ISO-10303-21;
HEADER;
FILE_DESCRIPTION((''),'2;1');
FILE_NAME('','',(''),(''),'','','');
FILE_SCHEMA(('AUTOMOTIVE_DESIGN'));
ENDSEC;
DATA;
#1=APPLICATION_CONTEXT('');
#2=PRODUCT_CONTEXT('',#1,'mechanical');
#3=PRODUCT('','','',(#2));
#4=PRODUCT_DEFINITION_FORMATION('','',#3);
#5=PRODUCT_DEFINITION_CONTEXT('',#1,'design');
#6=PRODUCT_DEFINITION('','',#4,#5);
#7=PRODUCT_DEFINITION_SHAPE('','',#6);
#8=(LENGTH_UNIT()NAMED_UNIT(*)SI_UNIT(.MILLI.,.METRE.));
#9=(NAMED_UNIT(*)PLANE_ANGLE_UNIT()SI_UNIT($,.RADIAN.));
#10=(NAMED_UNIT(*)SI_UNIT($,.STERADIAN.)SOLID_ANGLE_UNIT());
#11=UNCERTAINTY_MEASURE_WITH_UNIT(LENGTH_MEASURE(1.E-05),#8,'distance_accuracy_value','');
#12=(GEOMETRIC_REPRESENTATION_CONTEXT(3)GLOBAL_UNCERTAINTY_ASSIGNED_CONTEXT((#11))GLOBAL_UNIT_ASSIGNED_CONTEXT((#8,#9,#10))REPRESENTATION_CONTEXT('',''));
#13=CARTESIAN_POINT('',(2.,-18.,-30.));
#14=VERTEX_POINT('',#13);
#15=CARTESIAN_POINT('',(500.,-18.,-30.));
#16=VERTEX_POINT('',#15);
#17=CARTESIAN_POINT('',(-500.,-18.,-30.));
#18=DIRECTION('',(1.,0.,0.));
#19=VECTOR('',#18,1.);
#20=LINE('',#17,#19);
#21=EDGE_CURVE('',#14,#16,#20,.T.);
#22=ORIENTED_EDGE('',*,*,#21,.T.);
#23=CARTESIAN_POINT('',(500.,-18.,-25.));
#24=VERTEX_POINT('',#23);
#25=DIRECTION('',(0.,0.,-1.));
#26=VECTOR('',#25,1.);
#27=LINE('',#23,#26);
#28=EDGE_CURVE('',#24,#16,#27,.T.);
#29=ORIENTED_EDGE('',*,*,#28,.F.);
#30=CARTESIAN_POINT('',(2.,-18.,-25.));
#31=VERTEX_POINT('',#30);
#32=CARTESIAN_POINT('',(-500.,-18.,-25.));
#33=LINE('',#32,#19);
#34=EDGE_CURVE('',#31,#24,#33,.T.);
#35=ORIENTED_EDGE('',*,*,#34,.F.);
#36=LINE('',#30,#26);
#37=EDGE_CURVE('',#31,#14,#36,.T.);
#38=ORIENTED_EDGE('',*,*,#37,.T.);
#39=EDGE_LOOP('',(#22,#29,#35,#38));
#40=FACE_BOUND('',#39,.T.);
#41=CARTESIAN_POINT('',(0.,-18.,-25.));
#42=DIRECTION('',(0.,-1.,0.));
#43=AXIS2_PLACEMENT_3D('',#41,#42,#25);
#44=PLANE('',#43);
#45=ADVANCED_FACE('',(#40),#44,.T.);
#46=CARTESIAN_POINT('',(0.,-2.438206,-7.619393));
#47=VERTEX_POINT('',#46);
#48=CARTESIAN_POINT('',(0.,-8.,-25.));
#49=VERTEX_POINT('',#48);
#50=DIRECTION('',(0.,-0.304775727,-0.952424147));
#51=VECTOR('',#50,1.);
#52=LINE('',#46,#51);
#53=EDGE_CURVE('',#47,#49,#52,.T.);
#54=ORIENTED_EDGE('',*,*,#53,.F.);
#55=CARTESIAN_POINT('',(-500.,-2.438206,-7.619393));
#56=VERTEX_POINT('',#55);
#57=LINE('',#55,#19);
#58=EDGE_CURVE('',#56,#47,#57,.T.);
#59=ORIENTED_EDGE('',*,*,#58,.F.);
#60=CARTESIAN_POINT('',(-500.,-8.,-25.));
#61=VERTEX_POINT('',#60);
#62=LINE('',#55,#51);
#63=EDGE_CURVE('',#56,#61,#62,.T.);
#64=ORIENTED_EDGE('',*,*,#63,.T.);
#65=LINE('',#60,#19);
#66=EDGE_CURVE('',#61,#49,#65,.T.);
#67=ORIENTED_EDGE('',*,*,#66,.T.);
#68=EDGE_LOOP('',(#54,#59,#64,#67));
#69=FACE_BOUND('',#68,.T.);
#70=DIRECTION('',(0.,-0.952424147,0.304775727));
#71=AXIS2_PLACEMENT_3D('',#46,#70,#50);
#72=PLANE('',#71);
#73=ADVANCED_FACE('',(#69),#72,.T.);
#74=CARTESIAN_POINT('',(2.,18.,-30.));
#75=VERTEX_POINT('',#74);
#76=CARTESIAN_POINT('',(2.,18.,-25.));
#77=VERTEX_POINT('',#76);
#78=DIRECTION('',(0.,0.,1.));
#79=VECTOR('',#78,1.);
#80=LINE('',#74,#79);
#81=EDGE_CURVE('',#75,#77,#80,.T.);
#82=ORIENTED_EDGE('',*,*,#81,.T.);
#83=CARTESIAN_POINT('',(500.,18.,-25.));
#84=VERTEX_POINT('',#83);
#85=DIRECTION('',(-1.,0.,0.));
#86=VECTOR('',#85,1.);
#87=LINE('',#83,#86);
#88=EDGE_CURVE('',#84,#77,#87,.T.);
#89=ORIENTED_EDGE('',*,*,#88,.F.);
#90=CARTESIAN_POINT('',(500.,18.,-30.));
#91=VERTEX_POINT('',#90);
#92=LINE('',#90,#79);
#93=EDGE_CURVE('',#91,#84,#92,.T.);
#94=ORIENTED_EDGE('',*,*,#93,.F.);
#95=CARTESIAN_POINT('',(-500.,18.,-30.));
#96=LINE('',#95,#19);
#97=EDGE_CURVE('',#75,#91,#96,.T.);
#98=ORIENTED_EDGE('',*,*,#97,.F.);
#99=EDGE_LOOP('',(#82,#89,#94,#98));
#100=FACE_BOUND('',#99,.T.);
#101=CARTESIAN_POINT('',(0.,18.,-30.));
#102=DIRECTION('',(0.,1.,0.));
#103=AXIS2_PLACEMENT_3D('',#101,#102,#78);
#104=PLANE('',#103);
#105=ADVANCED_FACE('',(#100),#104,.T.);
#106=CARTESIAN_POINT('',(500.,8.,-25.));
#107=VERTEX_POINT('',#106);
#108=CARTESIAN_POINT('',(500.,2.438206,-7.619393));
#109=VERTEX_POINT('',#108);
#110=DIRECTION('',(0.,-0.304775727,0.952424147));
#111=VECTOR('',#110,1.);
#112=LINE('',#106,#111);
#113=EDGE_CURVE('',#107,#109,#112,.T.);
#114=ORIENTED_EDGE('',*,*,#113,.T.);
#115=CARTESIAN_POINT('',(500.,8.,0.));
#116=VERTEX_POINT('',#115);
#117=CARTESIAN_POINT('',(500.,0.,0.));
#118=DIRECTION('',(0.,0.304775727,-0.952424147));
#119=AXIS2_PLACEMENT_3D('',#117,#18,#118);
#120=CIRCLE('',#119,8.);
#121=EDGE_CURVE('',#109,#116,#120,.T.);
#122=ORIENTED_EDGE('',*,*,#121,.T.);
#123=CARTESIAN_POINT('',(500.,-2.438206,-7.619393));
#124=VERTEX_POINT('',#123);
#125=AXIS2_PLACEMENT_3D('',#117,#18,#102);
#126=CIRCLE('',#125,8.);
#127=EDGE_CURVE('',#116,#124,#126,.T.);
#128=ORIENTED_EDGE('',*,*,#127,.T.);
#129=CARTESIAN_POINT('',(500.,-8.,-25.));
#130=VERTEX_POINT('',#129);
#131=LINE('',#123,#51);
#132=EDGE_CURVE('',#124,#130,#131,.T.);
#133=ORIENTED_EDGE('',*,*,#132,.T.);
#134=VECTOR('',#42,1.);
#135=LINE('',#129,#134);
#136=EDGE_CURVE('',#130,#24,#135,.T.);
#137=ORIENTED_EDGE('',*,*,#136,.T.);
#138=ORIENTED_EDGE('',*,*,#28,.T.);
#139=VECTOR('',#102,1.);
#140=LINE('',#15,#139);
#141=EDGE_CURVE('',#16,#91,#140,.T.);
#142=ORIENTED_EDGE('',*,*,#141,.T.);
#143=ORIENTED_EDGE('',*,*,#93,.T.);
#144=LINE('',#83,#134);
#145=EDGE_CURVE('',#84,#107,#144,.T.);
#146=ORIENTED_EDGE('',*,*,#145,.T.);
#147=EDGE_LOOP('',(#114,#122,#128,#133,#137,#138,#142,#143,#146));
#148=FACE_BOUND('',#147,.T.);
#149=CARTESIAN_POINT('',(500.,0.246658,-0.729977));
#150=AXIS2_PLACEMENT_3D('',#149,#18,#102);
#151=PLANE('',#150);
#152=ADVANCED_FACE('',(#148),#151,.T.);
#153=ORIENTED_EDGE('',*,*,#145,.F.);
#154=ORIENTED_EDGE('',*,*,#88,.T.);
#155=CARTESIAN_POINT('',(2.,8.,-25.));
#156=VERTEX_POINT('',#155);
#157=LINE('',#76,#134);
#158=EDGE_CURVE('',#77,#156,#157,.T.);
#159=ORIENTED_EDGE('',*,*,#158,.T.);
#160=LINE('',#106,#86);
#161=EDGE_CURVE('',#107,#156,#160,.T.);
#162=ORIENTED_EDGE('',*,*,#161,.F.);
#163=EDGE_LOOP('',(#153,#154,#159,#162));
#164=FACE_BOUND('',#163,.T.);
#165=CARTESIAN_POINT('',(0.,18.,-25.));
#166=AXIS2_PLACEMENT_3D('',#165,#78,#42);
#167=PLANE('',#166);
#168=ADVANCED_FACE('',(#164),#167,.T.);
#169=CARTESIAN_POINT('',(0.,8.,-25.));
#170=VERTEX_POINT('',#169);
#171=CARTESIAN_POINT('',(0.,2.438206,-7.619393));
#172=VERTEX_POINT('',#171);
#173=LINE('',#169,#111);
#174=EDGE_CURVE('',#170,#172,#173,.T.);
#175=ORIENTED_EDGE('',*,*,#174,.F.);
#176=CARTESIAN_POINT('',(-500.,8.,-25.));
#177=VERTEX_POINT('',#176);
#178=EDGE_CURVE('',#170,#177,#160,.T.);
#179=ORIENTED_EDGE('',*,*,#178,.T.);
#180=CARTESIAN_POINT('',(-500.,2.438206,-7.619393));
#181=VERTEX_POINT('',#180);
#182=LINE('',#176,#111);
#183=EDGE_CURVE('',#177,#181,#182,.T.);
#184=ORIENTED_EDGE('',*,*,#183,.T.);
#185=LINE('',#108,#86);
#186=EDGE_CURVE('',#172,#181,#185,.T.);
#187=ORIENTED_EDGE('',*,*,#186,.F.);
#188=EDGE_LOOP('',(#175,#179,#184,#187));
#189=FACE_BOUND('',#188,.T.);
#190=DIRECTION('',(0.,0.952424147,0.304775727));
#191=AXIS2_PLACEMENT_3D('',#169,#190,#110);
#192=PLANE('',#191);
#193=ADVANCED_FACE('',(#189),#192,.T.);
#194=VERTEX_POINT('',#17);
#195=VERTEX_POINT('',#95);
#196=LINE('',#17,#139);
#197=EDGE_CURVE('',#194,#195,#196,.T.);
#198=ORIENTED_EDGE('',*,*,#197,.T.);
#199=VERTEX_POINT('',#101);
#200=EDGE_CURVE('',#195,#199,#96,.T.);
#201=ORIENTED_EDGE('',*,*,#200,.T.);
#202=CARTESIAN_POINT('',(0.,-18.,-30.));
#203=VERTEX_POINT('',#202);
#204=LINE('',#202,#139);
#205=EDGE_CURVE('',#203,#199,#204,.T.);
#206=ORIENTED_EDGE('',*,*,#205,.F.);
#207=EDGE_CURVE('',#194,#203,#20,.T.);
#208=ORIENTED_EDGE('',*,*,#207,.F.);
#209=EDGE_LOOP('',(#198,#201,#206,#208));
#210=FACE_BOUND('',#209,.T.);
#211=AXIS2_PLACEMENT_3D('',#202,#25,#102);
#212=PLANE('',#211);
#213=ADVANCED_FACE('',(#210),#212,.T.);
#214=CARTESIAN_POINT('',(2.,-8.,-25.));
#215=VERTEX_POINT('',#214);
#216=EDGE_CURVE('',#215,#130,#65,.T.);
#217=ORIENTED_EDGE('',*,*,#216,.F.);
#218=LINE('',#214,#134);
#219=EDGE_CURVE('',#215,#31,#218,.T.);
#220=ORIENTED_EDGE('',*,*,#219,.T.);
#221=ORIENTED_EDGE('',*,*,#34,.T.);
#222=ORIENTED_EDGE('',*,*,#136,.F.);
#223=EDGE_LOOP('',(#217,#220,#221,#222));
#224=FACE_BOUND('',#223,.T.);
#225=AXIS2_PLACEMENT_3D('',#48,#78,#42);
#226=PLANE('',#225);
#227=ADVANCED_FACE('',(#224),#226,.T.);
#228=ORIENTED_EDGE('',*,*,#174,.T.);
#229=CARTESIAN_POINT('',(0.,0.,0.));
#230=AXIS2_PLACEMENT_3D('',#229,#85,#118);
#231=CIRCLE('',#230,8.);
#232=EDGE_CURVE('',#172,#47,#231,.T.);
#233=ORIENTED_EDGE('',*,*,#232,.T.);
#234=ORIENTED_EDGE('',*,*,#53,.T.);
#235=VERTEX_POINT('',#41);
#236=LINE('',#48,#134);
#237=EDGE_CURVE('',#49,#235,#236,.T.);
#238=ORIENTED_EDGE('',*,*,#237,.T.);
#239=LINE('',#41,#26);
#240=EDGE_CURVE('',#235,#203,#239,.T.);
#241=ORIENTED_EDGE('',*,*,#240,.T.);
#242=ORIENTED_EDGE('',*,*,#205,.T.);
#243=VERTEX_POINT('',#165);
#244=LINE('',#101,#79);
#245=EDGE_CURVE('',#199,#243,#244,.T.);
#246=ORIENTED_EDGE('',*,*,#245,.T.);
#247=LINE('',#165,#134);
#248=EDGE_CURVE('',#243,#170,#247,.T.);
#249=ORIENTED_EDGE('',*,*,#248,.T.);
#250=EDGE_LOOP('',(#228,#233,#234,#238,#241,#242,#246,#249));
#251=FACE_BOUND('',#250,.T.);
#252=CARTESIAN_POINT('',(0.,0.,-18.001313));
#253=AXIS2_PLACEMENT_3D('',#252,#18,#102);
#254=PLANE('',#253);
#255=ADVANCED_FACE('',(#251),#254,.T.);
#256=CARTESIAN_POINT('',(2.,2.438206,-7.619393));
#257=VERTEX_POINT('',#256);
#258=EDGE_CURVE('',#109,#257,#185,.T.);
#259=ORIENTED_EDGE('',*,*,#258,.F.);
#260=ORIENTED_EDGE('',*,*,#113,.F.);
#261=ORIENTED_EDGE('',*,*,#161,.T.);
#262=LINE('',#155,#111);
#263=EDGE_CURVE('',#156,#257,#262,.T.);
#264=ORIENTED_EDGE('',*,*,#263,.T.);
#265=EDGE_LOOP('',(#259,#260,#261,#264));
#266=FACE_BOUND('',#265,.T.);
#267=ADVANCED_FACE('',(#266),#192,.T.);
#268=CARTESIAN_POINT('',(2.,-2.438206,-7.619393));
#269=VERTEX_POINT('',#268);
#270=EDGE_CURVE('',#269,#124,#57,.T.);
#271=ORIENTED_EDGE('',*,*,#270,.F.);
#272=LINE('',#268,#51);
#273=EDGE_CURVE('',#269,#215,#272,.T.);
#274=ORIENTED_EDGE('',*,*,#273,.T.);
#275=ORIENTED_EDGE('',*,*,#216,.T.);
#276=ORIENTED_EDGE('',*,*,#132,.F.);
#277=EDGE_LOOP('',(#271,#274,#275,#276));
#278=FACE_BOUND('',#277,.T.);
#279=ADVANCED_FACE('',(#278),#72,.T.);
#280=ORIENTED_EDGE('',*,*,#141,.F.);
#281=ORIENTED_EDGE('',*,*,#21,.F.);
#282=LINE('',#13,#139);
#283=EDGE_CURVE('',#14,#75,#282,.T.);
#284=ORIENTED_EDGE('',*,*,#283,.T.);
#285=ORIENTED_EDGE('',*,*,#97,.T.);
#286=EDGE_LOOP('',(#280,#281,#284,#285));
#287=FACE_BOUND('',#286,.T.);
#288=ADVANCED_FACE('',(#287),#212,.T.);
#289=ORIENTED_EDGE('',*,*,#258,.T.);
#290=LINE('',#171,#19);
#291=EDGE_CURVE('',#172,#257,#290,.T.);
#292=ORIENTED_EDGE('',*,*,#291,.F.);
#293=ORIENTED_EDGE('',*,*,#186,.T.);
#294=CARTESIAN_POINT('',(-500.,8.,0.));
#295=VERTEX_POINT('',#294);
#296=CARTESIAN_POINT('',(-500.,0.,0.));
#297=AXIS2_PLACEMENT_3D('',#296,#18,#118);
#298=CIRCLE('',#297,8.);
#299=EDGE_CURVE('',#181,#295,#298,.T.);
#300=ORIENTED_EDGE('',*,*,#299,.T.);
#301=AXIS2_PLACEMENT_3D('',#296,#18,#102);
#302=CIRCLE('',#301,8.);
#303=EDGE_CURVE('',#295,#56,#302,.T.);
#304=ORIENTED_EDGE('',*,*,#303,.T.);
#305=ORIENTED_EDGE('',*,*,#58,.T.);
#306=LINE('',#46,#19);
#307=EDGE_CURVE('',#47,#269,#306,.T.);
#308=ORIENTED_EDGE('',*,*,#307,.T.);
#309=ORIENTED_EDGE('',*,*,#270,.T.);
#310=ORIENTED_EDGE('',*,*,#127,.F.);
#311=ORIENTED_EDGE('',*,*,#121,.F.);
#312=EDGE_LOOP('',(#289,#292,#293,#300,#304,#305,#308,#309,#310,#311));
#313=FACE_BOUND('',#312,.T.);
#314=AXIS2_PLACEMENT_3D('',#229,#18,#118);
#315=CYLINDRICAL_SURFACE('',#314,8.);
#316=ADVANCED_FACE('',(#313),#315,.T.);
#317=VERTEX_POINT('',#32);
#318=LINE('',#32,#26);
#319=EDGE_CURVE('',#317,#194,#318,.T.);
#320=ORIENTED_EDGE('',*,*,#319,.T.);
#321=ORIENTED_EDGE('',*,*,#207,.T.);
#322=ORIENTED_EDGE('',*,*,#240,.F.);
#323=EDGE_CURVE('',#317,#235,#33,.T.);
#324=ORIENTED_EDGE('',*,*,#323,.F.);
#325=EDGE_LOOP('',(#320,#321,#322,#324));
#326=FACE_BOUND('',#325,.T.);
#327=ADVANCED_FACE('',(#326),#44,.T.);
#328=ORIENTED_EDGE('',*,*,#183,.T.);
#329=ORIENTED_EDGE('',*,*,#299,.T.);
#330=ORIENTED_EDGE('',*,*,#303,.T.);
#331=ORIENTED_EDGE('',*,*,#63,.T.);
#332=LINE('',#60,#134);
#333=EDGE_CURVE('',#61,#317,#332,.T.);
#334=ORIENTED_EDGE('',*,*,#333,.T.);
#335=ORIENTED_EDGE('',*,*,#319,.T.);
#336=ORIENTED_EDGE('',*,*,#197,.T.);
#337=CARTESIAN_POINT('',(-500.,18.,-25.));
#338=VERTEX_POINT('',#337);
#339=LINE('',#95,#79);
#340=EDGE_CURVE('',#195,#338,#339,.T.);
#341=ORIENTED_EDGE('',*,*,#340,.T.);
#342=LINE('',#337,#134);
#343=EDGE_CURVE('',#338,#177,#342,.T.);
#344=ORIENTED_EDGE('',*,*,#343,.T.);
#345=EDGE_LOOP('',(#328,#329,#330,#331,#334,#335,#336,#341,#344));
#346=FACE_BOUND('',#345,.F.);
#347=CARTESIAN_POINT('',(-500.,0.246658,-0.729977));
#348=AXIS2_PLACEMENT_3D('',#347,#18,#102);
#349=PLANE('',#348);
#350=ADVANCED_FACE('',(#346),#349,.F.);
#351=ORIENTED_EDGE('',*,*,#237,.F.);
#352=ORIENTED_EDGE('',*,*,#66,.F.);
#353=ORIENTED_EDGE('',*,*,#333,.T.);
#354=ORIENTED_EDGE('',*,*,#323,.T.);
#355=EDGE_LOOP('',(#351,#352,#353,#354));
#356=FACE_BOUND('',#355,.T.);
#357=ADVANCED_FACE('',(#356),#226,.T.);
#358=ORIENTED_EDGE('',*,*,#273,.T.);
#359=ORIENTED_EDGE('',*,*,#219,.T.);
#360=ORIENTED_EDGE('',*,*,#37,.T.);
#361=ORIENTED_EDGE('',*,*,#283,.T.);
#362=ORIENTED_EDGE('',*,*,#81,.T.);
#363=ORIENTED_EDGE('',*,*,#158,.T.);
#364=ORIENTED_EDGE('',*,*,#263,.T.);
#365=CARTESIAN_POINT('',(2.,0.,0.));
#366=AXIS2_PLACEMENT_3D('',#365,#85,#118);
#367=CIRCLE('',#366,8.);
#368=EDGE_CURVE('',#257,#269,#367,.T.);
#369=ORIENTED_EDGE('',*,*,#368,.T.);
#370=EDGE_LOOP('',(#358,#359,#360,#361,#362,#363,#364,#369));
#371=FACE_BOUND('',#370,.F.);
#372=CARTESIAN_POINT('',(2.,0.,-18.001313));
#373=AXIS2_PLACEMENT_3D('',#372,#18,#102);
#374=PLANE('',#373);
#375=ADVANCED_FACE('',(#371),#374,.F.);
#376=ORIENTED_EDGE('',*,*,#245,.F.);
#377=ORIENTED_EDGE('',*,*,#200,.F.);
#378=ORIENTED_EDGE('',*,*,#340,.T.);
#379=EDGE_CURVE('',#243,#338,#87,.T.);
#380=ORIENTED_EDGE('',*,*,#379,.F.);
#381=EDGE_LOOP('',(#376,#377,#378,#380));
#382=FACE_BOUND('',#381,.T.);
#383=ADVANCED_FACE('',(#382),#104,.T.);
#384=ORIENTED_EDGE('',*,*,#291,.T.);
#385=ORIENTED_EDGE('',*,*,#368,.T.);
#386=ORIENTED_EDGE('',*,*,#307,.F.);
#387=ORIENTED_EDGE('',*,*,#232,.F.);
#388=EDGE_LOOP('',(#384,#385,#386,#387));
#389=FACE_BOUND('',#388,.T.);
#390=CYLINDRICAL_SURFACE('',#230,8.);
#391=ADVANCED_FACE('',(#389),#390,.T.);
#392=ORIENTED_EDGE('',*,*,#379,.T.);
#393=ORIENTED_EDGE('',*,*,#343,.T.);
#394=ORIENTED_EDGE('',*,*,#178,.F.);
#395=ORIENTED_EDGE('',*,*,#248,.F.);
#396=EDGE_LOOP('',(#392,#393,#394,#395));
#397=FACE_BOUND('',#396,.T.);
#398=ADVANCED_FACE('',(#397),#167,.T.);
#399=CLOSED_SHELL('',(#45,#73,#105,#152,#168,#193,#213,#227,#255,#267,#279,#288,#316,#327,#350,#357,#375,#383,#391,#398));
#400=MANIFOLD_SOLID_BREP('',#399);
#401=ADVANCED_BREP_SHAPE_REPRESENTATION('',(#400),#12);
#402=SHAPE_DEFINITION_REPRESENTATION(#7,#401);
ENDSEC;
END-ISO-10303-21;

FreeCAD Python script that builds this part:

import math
import FreeCAD as App
import Part
import Sketcher

doc = App.newDocument("Part")
body = doc.addObject("PartDesign::Body", "Body")

# Sketch on YZ plane
sketch1 = body.newObject("Sketcher::SketchObject", "Sketch")
sketch1.AttachmentSupport = (doc.getObject("YZ_Plane"), [""])
sketch1.MapMode = "FlatFace"
sketch1.addGeometry([
    Part.ArcOfCircle(Part.Circle(App.Vector(0, 0, 0), App.Vector(0, 0, 1), 8), math.radians(-72.255328), math.radians(0)),  # 0
    Part.ArcOfCircle(Part.Circle(App.Vector(0, 0, 0), App.Vector(0, 0, 1), 8), math.radians(0), math.radians(252.255328)),  # 1
    Part.LineSegment(App.Vector(-2.438206, -7.619393, 0), App.Vector(-8, -25, 0)),  # 2
    Part.LineSegment(App.Vector(-8, -25, 0), App.Vector(-18, -25, 0)),  # 3
    Part.LineSegment(App.Vector(-18, -25, 0), App.Vector(-18, -30, 0)),  # 4
    Part.LineSegment(App.Vector(-18, -30, 0), App.Vector(18, -30, 0)),  # 5
    Part.LineSegment(App.Vector(18, -30, 0), App.Vector(18, -25, 0)),  # 6
    Part.LineSegment(App.Vector(18, -25, 0), App.Vector(8, -25, 0)),  # 7
    Part.LineSegment(App.Vector(8, -25, 0), App.Vector(2.438206, -7.619393, 0)),  # 8
], False)
sketch1.addConstraint([
    Sketcher.Constraint("Tangent", 0, 2, 1, 1),
    Sketcher.Constraint("Coincident", 1, 2, 2, 1),
    Sketcher.Constraint("Coincident", 2, 2, 3, 1),
    Sketcher.Constraint("Coincident", 3, 2, 4, 1),
    Sketcher.Constraint("Coincident", 4, 2, 5, 1),
    Sketcher.Constraint("Coincident", 5, 2, 6, 1),
    Sketcher.Constraint("Coincident", 6, 2, 7, 1),
    Sketcher.Constraint("Coincident", 7, 2, 8, 1),
    Sketcher.Constraint("Coincident", 8, 2, 0, 1),
    Sketcher.Constraint("Horizontal", 3),
    Sketcher.Constraint("Vertical", 4),
    Sketcher.Constraint("Horizontal", 5),
    Sketcher.Constraint("Vertical", 6),
    Sketcher.Constraint("Horizontal", 7),
    Sketcher.Constraint("Coincident", 0, 3, -1, 1),
    Sketcher.Constraint("Equal", 0, 1),
    Sketcher.Constraint("Symmetric", 3, 2, 6, 2, -2),
    Sketcher.Constraint("PointOnObject", 0, 2, -1),
    Sketcher.Constraint("Horizontal", 1, 2, 8, 2),
    Sketcher.Constraint("Vertical", 0, 2, 7, 2),
    Sketcher.Constraint("Equal", 3, 7),
    Sketcher.Constraint("Radius", 0, 8.0),
    Sketcher.Constraint("DistanceX", 3, 2, 3, 1, 10.0),
    Sketcher.Constraint("DistanceY", 4, 2, 4, 1, 5.0),
    Sketcher.Constraint("DistanceY", 2, 2, -1, 1, 25.0),
    Sketcher.Constraint("DistanceX", 1, 2, 8, 2, 4.876412),
])
pad1 = body.newObject("PartDesign::Pad", "Pad")
pad1.Profile = sketch1
pad1.Length = 1000
pad1.Midplane = True

# Sketch on YZ plane
sketch2 = body.newObject("Sketcher::SketchObject", "Sketch001")
sketch2.AttachmentSupport = (doc.getObject("YZ_Plane"), [""])
sketch2.MapMode = "FlatFace"
sketch2.addGeometry([
    Part.ArcOfCircle(Part.Circle(App.Vector(0, 0, 0), App.Vector(0, 0, 1), 8), math.radians(-107.744672), math.radians(-72.255328)),  # 0
    Part.LineSegment(App.Vector(-2.438206, -7.619393, 0), App.Vector(-8, -25, 0)),  # 1
    Part.LineSegment(App.Vector(-8, -25, 0), App.Vector(-18, -25, 0)),  # 2
    Part.LineSegment(App.Vector(-18, -25, 0), App.Vector(-18, -30, 0)),  # 3
    Part.LineSegment(App.Vector(-18, -30, 0), App.Vector(18, -30, 0)),  # 4
    Part.LineSegment(App.Vector(18, -30, 0), App.Vector(18, -25, 0)),  # 5
    Part.LineSegment(App.Vector(18, -25, 0), App.Vector(8, -25, 0)),  # 6
    Part.LineSegment(App.Vector(8, -25, 0), App.Vector(2.438206, -7.619393, 0)),  # 7
], False)
sketch2.addConstraint([
    Sketcher.Constraint("Coincident", 0, 1, 1, 1),
    Sketcher.Constraint("Coincident", 1, 2, 2, 1),
    Sketcher.Constraint("Coincident", 2, 2, 3, 1),
    Sketcher.Constraint("Coincident", 3, 2, 4, 1),
    Sketcher.Constraint("Coincident", 4, 2, 5, 1),
    Sketcher.Constraint("Coincident", 5, 2, 6, 1),
    Sketcher.Constraint("Coincident", 6, 2, 7, 1),
    Sketcher.Constraint("Coincident", 7, 2, 0, 2),
    Sketcher.Constraint("Horizontal", 2),
    Sketcher.Constraint("Vertical", 3),
    Sketcher.Constraint("Horizontal", 4),
    Sketcher.Constraint("Vertical", 5),
    Sketcher.Constraint("Horizontal", 6),
    Sketcher.Constraint("Coincident", 0, 3, -1, 1),
    Sketcher.Constraint("Symmetric", 2, 2, 5, 2, -2),
    Sketcher.Constraint("Horizontal", 0, 1, 7, 2),
    Sketcher.Constraint("Equal", 2, 6),
    Sketcher.Constraint("Radius", 0, 8.0),
    Sketcher.Constraint("DistanceX", 2, 2, 2, 1, 10.0),
    Sketcher.Constraint("DistanceX", 4, 1, 4, 2, 36.0),
    Sketcher.Constraint("DistanceY", 3, 2, 3, 1, 5.0),
    Sketcher.Constraint("DistanceY", 1, 2, -1, 1, 25.0),
    Sketcher.Constraint("DistanceX", 0, 1, 7, 2, 4.876412),
])
pocket1 = body.newObject("PartDesign::Pocket", "Pocket")
pocket1.Profile = sketch2
pocket1.Length = 2
pocket1.Reversed = True

doc.recompute()
